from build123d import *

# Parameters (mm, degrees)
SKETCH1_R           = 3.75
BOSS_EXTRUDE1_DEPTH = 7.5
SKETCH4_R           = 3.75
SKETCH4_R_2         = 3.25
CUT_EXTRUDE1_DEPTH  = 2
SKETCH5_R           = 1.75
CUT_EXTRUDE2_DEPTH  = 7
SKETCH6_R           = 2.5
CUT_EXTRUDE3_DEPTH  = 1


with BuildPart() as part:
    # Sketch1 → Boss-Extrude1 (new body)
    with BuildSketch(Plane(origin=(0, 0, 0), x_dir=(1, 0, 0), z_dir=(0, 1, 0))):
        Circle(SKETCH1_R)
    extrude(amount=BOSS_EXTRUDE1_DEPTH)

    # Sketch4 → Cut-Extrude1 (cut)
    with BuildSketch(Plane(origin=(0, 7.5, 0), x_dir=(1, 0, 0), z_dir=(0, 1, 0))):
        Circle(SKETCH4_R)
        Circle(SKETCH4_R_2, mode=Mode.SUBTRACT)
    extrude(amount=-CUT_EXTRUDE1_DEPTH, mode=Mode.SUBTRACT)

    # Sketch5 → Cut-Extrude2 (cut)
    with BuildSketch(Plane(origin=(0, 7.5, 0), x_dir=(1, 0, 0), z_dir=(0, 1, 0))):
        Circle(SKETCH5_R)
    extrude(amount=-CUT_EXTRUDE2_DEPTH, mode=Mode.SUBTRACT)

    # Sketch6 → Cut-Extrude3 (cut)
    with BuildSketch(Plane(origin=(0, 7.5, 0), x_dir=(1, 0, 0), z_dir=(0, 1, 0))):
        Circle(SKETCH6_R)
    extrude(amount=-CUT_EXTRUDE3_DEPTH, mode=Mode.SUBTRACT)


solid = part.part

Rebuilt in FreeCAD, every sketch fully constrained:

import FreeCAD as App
import Part
import Sketcher

doc = App.newDocument("Part")
body = doc.addObject("PartDesign::Body", "Body")

# Sketch on XZ plane
sketch1 = body.newObject("Sketcher::SketchObject", "Sketch")
sketch1.AttachmentSupport = (doc.getObject("XZ_Plane"), [""])
sketch1.MapMode = "FlatFace"
sketch1.addGeometry(Part.Circle(App.Vector(0, 0, 0), App.Vector(0, 0, 1), 3.8), False)
sketch1.addConstraint([
    Sketcher.Constraint("Coincident", 0, 3, -1, 1),
    Sketcher.Constraint("Diameter", 0, 7.5),
])
pad1 = body.newObject("PartDesign::Pad", "Pad")
pad1.Profile = sketch1
pad1.Length = 7.5
pad1.Reversed = True

# Sketch on XZ plane
sketch2 = body.newObject("Sketcher::SketchObject", "Sketch001")
sketch2.AttachmentSupport = (doc.getObject("XZ_Plane"), [""])
sketch2.MapMode = "FlatFace"
sketch2.AttachmentOffset = App.Placement(App.Vector(0, 0, -7.5), App.Rotation())
sketch2.addGeometry([
    Part.Circle(App.Vector(0, 0, 0), App.Vector(0, 0, 1), 3.8),
    Part.Circle(App.Vector(0, 0, 0), App.Vector(0, 0, 1), 3.2),
], False)
sketch2.addConstraint([
    Sketcher.Constraint("Coincident", 0, 3, -1, 1),
    Sketcher.Constraint("Coincident", 1, 3, -1, 1),
    Sketcher.Constraint("Diameter", 0, 7.5),
    Sketcher.Constraint("Diameter", 1, 6.5),
])
pocket1 = body.newObject("PartDesign::Pocket", "Pocket")
pocket1.Profile = sketch2
pocket1.Length = 2
pocket1.Reversed = True

# Sketch on XZ plane
sketch3 = body.newObject("Sketcher::SketchObject", "Sketch002")
sketch3.AttachmentSupport = (doc.getObject("XZ_Plane"), [""])
sketch3.MapMode = "FlatFace"
sketch3.AttachmentOffset = App.Placement(App.Vector(0, 0, -7.5), App.Rotation())
sketch3.addGeometry(Part.Circle(App.Vector(0, 0, 0), App.Vector(0, 0, 1), 1.8), False)
sketch3.addConstraint([
    Sketcher.Constraint("Coincident", 0, 3, -1, 1),
    Sketcher.Constraint("Diameter", 0, 3.5),
])
pocket2 = body.newObject("PartDesign::Pocket", "Pocket001")
pocket2.Profile = sketch3
pocket2.Length = 7
pocket2.Reversed = True

# Sketch on XZ plane
sketch4 = body.newObject("Sketcher::SketchObject", "Sketch003")
sketch4.AttachmentSupport = (doc.getObject("XZ_Plane"), [""])
sketch4.MapMode = "FlatFace"
sketch4.AttachmentOffset = App.Placement(App.Vector(0, 0, -7.5), App.Rotation())
sketch4.addGeometry(Part.Circle(App.Vector(0, 0, 0), App.Vector(0, 0, 1), 2.5), False)
sketch4.addConstraint([
    Sketcher.Constraint("Coincident", 0, 3, -1, 1),
    Sketcher.Constraint("Diameter", 0, 5.0),
])
pocket3 = body.newObject("PartDesign::Pocket", "Pocket002")
pocket3.Profile = sketch4
pocket3.Length = 1
pocket3.Reversed = True

doc.recompute()
